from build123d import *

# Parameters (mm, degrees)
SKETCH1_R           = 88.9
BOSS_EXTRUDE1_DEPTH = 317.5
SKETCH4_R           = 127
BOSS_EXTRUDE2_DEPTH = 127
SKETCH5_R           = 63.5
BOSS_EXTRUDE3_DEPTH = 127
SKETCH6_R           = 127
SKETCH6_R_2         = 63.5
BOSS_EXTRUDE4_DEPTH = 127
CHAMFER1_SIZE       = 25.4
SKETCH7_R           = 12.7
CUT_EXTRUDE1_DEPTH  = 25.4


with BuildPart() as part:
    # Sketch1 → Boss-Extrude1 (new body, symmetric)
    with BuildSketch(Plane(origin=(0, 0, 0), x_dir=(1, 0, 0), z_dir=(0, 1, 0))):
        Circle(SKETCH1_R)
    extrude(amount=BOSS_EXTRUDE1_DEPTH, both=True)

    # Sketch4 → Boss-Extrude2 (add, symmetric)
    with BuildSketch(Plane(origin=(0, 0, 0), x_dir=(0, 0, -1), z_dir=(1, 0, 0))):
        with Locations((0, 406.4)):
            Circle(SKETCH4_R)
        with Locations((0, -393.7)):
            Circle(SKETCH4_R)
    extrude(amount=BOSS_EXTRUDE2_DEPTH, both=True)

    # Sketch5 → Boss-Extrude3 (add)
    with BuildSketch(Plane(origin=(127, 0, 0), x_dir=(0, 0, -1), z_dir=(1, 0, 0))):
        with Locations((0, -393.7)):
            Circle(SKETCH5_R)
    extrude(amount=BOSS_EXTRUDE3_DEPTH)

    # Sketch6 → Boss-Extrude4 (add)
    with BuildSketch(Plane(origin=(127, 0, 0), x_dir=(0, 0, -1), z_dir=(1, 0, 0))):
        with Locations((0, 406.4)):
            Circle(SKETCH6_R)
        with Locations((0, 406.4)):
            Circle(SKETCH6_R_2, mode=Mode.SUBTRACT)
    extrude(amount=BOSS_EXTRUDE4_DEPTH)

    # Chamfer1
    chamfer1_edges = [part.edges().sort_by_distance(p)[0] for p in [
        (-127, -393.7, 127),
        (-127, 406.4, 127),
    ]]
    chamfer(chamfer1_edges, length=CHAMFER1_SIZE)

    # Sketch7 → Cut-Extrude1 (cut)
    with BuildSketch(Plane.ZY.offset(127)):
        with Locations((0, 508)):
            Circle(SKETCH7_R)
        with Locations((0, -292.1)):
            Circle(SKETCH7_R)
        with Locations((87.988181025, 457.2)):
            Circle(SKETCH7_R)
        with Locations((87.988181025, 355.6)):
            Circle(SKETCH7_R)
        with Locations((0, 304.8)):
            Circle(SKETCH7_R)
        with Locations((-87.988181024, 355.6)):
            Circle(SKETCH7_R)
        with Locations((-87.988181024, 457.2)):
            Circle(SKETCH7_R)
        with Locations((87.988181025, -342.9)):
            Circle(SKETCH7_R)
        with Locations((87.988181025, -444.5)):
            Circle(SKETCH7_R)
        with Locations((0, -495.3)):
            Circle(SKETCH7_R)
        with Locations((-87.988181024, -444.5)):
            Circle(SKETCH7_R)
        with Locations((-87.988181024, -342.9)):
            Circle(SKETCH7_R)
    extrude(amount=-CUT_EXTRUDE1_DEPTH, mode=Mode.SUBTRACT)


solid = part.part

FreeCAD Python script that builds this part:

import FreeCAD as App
import Part
import Sketcher
from FreeCAD import Vector
Q = App.Units.Quantity


def edges_at(feature, points):
    """Names of the edges that pass closest to the given points."""
    edges = feature.Shape.Edges
    near = lambda p: min(range(len(edges)), key=lambda i: edges[i].distToShape(Part.Vertex(*p))[0])
    return sorted({f"Edge{near(p) + 1}" for p in points})

doc = App.newDocument("Part")
params = doc.addObject("Spreadsheet::Sheet", "Params")
for row, (alias, value) in enumerate([
    ("sketch1_diameter", "7 in"),
    ("pad1_length", "25 in"),
    ("sketch2_diameter", "10 in"),
    ("pad2_length", "10 in"),
    ("sketch3_diameter", "5 in"),
    ("pad3_length", "5 in"),
    ("sketch4_diameter", "10 in"),
    ("sketch4_diameter2", "5 in"),
    ("pad4_length", "5 in"),
    ("chamfer_size", "1 in"),
    ("sketch5_diameter", "1 in"),
    ("pocket1_length", "1 in"),
], start=1):
    params.set(f"A{row}", alias)
    params.set(f"B{row}", "=" + value)
    params.setAlias(f"B{row}", alias)

body = doc.addObject("PartDesign::Body", "Body")

sketch1 = body.newObject("Sketcher::SketchObject", "Sketch")
sketch1.AttachmentSupport = (doc.getObject("XZ_Plane"), [""])
sketch1.MapMode = "FlatFace"
sketch1.addGeometry(Part.Circle(Vector(0, 0, 0), Vector(0, 0, 1), 89), False)
sketch1.addConstraint([
    Sketcher.Constraint("Coincident", 0, 3, -1, 1),
    Sketcher.Constraint("Diameter", 0, Q("7 in")),
])
sketch1.setExpression("Constraints[1]", "Params.sketch1_diameter")
pad1 = body.newObject("PartDesign::Pad", "Pad")
pad1.Profile = sketch1
pad1.setExpression("Length", "Params.pad1_length")
pad1.Midplane = True

sketch2 = body.newObject("Sketcher::SketchObject", "Sketch001")
sketch2.AttachmentSupport = (doc.getObject("YZ_Plane"), [""])
sketch2.MapMode = "FlatFace"
sketch2.addGeometry([
    Part.Circle(Vector(406, 0, 0), Vector(0, 0, 1), 127),
    Part.Circle(Vector(-394, 0, 0), Vector(0, 0, 1), 127),
], False)
sketch2.addConstraint([
    Sketcher.Constraint("Equal", 0, 1),
    Sketcher.Constraint("PointOnObject", 0, 3, -1),
    Sketcher.Constraint("PointOnObject", 1, 3, -1),
    Sketcher.Constraint("Diameter", 0, Q("10 in")),
    Sketcher.Constraint("DistanceX", -1, 1, 0, 3, Q("16 in")),
    Sketcher.Constraint("DistanceX", 1, 3, -1, 1, Q("15.5 in")),
])
sketch2.setExpression("Constraints[3]", "Params.sketch2_diameter")
pad2 = body.newObject("PartDesign::Pad", "Pad001")
pad2.Profile = sketch2
pad2.setExpression("Length", "Params.pad2_length")
pad2.Midplane = True

sketch3 = body.newObject("Sketcher::SketchObject", "Sketch002")
sketch3.AttachmentSupport = (doc.getObject("YZ_Plane"), [""])
sketch3.MapMode = "FlatFace"
sketch3.AttachmentOffset = App.Placement(Vector(0, 0, 5 * 25.4), App.Rotation())
sketch3.addGeometry(Part.Circle(Vector(-394, 0, 0), Vector(0, 0, 1), 64), False)
sketch3.addConstraint([
    Sketcher.Constraint("PointOnObject", 0, 3, -1),
    Sketcher.Constraint("Diameter", 0, Q("5 in")),
    Sketcher.Constraint("DistanceX", 0, 3, -1, 1, Q("15.5 in")),
])
sketch3.setExpression("Constraints[1]", "Params.sketch3_diameter")
pad3 = body.newObject("PartDesign::Pad", "Pad002")
pad3.Profile = sketch3
pad3.setExpression("Length", "Params.pad3_length")

sketch4 = body.newObject("Sketcher::SketchObject", "Sketch003")
sketch4.AttachmentSupport = (doc.getObject("YZ_Plane"), [""])
sketch4.MapMode = "FlatFace"
sketch4.AttachmentOffset = App.Placement(Vector(0, 0, 5 * 25.4), App.Rotation())
sketch4.addGeometry([
    Part.Circle(Vector(406, 0, 0), Vector(0, 0, 1), 127),
    Part.Circle(Vector(406, 0, 0), Vector(0, 0, 1), 64),
], False)
sketch4.addConstraint([
    Sketcher.Constraint("Coincident", 1, 3, 0, 3),
    Sketcher.Constraint("PointOnObject", 0, 3, -1),
    Sketcher.Constraint("Diameter", 0, Q("10 in")),
    Sketcher.Constraint("Diameter", 1, Q("5 in")),
    Sketcher.Constraint("DistanceX", -1, 1, 0, 3, Q("16 in")),
])
sketch4.setExpression("Constraints[2]", "Params.sketch4_diameter")
sketch4.setExpression("Constraints[3]", "Params.sketch4_diameter2")
pad4 = body.newObject("PartDesign::Pad", "Pad003")
pad4.Profile = sketch4
pad4.setExpression("Length", "Params.pad4_length")
doc.recompute()

chamfer = body.newObject("PartDesign::Chamfer", "Chamfer")
chamfer.Base = (pad4, edges_at(pad4, [(-127, -393.7, 127), (-127, 406.4, 127)]))
chamfer.setExpression("Size", "Params.chamfer_size")

sketch5 = body.newObject("Sketcher::SketchObject", "Sketch004")
sketch5.AttachmentSupport = (doc.getObject("YZ_Plane"), [""])
sketch5.MapMode = "FlatFace"
sketch5.AttachmentOffset = App.Placement(Vector(0, 0, -5 * 25.4), App.Rotation())
sketch5.addGeometry([
    Part.Circle(Vector(508, 0, 0), Vector(0, 0, 1), 13),
    Part.Circle(Vector(-292, 0, 0), Vector(0, 0, 1), 13),
    Part.Circle(Vector(457, 88, 0), Vector(0, 0, 1), 13),
    Part.Circle(Vector(356, 88, 0), Vector(0, 0, 1), 13),
    Part.Circle(Vector(305, 0, 0), Vector(0, 0, 1), 13),
    Part.Circle(Vector(356, -88, 0), Vector(0, 0, 1), 13),
    Part.Circle(Vector(457, -88, 0), Vector(0, 0, 1), 13),
    Part.Circle(Vector(-343, 88, 0), Vector(0, 0, 1), 13),
    Part.Circle(Vector(-444, 88, 0), Vector(0, 0, 1), 13),
    Part.Circle(Vector(-495, 0, 0), Vector(0, 0, 1), 13),
    Part.Circle(Vector(-444, -88, 0), Vector(0, 0, 1), 13),
    Part.Circle(Vector(-343, -88, 0), Vector(0, 0, 1), 13),
], False)
sketch5.addConstraint([
    Sketcher.Constraint("Equal", 0, 1),
    Sketcher.Constraint("Equal", 1, 2),
    Sketcher.Constraint("Equal", 2, 3),
    Sketcher.Constraint("Equal", 3, 4),
    Sketcher.Constraint("Equal", 4, 5),
    Sketcher.Constraint("Equal", 5, 6),
    Sketcher.Constraint("Equal", 6, 7),
    Sketcher.Constraint("Equal", 7, 8),
    Sketcher.Constraint("Equal", 8, 9),
    Sketcher.Constraint("Equal", 9, 10),
    Sketcher.Constraint("Equal", 10, 11),
    Sketcher.Constraint("Symmetric", 3, 3, 5, 3, -1),
    Sketcher.Constraint("Symmetric", 2, 3, 6, 3, -1),
    Sketcher.Constraint("Symmetric", 8, 3, 10, 3, -1),
    Sketcher.Constraint("Symmetric", 7, 3, 11, 3, -1),
    Sketcher.Constraint("PointOnObject", 0, 3, -1),
    Sketcher.Constraint("PointOnObject", 1, 3, -1),
    Sketcher.Constraint("PointOnObject", 4, 3, -1),
    Sketcher.Constraint("PointOnObject", 9, 3, -1),
    Sketcher.Constraint("Horizontal", 2, 3, 3, 3),
    Sketcher.Constraint("Horizontal", 3, 3, 7, 3),
    Sketcher.Constraint("Horizontal", 7, 3, 8, 3),
    Sketcher.Constraint("Diameter", 0, Q("1 in")),
    Sketcher.Constraint("DistanceX", -1, 1, 0, 3, Q("20 in")),
    Sketcher.Constraint("DistanceX", -1, 1, 2, 3, Q("18 in")),
    Sketcher.Constraint("DistanceX", -1, 1, 3, 3, Q("14 in")),
    Sketcher.Constraint("DistanceX", -1, 1, 4, 3, Q("12 in")),
    Sketcher.Constraint("DistanceX", 7, 3, 1, 3, Q("2 in")),
    Sketcher.Constraint("DistanceX", 8, 3, 7, 3, Q("4 in")),
    Sketcher.Constraint("DistanceX", 9, 3, 8, 3, Q("2 in")),
    Sketcher.Constraint("DistanceX", 1, 3, -1, 1, Q("11.5 in")),
    Sketcher.Constraint("DistanceY", -1, 1, 2, 3, 87.988181),
])
sketch5.setExpression("Constraints[22]", "Params.sketch5_diameter")
pocket1 = body.newObject("PartDesign::Pocket", "Pocket")
pocket1.Profile = sketch5
pocket1.setExpression("Length", "Params.pocket1_length")
pocket1.Reversed = True

doc.recompute()
